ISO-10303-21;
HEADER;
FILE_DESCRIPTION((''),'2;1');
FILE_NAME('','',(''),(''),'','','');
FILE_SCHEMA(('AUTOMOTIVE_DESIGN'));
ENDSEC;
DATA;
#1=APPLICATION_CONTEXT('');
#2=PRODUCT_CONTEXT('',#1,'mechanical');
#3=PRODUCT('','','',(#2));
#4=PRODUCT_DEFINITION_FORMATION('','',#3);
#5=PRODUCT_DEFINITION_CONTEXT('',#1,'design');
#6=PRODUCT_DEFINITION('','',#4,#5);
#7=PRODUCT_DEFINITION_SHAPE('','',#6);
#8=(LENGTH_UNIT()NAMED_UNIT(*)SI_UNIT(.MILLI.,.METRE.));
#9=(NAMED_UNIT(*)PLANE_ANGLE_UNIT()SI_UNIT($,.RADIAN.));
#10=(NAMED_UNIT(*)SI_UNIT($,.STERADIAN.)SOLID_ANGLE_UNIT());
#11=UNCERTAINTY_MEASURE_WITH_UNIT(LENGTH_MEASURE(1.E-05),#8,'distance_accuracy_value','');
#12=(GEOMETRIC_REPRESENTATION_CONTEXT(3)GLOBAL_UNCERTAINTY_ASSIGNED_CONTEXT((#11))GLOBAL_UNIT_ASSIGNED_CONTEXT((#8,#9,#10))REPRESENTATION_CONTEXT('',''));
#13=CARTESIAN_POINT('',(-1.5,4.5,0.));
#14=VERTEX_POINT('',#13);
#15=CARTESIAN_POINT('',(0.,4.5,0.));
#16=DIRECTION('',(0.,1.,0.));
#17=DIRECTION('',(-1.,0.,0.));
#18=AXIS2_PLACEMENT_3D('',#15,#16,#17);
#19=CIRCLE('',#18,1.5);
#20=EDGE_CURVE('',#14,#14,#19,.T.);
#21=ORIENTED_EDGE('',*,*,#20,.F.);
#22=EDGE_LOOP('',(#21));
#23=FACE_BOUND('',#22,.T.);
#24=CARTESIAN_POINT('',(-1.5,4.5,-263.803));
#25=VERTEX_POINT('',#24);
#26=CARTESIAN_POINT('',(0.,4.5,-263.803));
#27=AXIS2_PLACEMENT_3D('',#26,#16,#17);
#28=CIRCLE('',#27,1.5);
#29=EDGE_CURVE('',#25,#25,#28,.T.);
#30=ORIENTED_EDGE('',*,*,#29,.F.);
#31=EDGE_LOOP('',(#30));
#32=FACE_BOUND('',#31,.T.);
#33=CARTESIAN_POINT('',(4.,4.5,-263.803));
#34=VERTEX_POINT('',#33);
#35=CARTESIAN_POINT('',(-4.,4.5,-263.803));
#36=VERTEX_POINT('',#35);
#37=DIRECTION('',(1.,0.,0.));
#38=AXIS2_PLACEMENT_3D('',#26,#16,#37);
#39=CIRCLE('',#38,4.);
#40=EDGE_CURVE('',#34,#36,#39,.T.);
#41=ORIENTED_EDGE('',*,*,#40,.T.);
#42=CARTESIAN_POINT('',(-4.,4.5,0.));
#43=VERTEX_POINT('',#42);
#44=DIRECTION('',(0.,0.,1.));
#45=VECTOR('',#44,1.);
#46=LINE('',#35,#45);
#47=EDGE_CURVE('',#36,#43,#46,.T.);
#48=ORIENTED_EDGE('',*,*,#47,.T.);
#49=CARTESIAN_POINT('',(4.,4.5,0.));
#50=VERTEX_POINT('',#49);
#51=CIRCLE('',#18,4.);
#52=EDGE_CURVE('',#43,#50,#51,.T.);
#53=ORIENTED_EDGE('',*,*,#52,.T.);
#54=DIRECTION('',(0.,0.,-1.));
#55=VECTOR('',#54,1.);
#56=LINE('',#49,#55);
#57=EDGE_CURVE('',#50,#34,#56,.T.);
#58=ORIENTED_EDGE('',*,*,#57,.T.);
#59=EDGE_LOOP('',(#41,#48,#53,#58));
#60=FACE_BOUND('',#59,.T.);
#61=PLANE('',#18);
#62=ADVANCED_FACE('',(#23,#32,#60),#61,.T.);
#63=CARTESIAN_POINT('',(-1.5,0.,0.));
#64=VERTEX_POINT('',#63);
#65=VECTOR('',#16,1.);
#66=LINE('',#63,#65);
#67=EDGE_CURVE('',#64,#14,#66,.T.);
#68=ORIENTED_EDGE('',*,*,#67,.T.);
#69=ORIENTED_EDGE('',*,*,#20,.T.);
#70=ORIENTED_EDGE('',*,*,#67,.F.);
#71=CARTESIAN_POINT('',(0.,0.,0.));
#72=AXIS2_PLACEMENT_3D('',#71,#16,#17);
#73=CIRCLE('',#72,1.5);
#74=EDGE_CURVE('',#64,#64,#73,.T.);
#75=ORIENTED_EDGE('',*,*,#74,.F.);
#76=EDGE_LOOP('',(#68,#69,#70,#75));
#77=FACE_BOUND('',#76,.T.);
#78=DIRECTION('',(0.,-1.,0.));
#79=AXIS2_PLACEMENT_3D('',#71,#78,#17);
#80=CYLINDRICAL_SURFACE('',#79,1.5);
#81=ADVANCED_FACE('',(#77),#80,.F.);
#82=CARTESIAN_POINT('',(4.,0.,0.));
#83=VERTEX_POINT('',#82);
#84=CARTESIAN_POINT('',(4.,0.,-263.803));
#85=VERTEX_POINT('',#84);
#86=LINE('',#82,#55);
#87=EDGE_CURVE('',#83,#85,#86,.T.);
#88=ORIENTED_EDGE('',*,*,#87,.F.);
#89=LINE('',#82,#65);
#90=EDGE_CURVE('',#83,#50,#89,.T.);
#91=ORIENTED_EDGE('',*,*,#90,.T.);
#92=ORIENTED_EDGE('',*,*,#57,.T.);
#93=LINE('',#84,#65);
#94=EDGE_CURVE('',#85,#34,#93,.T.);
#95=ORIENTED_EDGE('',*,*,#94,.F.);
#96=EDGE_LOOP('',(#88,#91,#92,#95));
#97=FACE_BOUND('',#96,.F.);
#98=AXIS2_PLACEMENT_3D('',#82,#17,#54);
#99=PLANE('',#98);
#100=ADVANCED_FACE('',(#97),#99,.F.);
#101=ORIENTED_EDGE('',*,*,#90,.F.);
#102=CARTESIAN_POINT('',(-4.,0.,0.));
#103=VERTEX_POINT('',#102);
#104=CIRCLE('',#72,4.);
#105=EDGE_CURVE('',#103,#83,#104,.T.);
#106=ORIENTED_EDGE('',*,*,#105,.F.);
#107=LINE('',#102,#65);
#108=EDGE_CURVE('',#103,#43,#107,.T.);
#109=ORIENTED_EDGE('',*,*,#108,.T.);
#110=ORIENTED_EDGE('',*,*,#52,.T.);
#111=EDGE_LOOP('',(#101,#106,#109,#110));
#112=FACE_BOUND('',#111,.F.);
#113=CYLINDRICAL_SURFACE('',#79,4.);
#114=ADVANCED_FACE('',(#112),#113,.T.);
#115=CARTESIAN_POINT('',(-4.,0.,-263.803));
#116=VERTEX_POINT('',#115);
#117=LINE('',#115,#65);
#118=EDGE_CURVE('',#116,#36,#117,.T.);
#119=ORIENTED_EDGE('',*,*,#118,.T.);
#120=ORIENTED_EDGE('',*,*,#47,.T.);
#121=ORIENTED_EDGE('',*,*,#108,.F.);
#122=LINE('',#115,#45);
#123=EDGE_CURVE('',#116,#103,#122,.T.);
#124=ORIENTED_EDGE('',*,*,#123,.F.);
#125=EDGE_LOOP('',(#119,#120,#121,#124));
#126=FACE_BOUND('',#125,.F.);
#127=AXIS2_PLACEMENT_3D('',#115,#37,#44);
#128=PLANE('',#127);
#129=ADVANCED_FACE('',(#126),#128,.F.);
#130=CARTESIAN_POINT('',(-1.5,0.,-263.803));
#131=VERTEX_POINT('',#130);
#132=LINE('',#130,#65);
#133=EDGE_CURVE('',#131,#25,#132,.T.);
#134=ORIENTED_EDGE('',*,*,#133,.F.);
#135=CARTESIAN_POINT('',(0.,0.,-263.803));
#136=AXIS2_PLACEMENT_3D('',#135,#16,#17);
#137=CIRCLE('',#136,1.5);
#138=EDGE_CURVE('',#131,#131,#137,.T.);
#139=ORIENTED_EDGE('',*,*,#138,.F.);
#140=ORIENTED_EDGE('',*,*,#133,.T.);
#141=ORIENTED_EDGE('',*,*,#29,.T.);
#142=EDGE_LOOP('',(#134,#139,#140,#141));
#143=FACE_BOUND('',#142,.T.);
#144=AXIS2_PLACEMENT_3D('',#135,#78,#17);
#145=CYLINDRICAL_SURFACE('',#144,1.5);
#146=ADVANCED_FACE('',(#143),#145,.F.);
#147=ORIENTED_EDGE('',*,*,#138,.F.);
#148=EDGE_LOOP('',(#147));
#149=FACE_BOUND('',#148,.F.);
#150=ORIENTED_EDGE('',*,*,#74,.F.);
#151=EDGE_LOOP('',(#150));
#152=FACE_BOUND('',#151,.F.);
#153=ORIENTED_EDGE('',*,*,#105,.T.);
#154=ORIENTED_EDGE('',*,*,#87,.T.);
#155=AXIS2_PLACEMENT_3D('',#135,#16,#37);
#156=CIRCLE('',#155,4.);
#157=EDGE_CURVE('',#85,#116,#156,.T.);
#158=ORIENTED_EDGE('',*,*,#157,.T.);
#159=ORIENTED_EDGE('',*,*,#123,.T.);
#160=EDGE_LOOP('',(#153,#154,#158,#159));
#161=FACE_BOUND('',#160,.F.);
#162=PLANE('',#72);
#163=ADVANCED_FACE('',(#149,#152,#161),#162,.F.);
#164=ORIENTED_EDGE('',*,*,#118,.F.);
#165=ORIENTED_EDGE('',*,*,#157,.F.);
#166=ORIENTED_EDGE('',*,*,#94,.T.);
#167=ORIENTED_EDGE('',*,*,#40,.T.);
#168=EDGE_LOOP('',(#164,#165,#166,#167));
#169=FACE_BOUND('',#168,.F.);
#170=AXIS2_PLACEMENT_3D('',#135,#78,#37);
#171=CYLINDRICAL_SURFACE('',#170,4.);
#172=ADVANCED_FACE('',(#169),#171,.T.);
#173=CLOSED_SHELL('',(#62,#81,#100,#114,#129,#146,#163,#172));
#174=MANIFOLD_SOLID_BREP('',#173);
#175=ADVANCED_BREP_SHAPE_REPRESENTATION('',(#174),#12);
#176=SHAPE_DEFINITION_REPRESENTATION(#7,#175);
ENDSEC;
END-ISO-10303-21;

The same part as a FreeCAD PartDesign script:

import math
import FreeCAD as App
import Part
import Sketcher
Q = App.Units.Quantity

doc = App.newDocument("Part")
body = doc.addObject("PartDesign::Body", "Body")

# Sketch on XZ plane
sketch1 = body.newObject("Sketcher::SketchObject", "Sketch")
sketch1.AttachmentSupport = (doc.getObject("XZ_Plane"), [""])
sketch1.MapMode = "FlatFace"
sketch1.addGeometry([
    Part.ArcOfCircle(Part.Circle(App.Vector(0, 0, 0), App.Vector(0, 0, 1), 4), math.radians(0), math.radians(180)),  # 0
    Part.LineSegment(App.Vector(4, 0, 0), App.Vector(4, -263.8, 0)),  # 1
    Part.ArcOfCircle(Part.Circle(App.Vector(0, -263.8, 0), App.Vector(0, 0, 1), 4), math.radians(180), math.radians(360)),  # 2
    Part.LineSegment(App.Vector(-4, -263.8, 0), App.Vector(-4, 0, 0)),  # 3
    Part.Circle(App.Vector(0, -263.8, 0), App.Vector(0, 0, 1), 1.5),  # 4
    Part.Circle(App.Vector(0, 0, 0), App.Vector(0, 0, 1), 1.5),  # 5
], False)
sketch1.addConstraint([
    Sketcher.Constraint("Tangent", 0, 1, 1, 1),
    Sketcher.Constraint("Tangent", 1, 2, 2, 2),
    Sketcher.Constraint("Tangent", 2, 1, 3, 1),
    Sketcher.Constraint("Tangent", 3, 2, 0, 2),
    Sketcher.Constraint("Vertical", 1),
    Sketcher.Constraint("Vertical", 3),
    Sketcher.Constraint("Coincident", 0, 3, -1, 1),
    Sketcher.Constraint("Coincident", 5, 3, -1, 1),
    Sketcher.Constraint("Coincident", 4, 3, 2, 3),
    Sketcher.Constraint("Equal", 4, 5),
    Sketcher.Constraint("Diameter", 4, Q("3 mm")),
    Sketcher.Constraint("Radius", 0, Q("4 mm")),
    Sketcher.Constraint("DistanceY", 1, 2, 1, 1, Q("263.803 mm")),
])
pad1 = body.newObject("PartDesign::Pad", "Pad")
pad1.Profile = sketch1
pad1.Length = 4.5
pad1.Reversed = True

doc.recompute()
